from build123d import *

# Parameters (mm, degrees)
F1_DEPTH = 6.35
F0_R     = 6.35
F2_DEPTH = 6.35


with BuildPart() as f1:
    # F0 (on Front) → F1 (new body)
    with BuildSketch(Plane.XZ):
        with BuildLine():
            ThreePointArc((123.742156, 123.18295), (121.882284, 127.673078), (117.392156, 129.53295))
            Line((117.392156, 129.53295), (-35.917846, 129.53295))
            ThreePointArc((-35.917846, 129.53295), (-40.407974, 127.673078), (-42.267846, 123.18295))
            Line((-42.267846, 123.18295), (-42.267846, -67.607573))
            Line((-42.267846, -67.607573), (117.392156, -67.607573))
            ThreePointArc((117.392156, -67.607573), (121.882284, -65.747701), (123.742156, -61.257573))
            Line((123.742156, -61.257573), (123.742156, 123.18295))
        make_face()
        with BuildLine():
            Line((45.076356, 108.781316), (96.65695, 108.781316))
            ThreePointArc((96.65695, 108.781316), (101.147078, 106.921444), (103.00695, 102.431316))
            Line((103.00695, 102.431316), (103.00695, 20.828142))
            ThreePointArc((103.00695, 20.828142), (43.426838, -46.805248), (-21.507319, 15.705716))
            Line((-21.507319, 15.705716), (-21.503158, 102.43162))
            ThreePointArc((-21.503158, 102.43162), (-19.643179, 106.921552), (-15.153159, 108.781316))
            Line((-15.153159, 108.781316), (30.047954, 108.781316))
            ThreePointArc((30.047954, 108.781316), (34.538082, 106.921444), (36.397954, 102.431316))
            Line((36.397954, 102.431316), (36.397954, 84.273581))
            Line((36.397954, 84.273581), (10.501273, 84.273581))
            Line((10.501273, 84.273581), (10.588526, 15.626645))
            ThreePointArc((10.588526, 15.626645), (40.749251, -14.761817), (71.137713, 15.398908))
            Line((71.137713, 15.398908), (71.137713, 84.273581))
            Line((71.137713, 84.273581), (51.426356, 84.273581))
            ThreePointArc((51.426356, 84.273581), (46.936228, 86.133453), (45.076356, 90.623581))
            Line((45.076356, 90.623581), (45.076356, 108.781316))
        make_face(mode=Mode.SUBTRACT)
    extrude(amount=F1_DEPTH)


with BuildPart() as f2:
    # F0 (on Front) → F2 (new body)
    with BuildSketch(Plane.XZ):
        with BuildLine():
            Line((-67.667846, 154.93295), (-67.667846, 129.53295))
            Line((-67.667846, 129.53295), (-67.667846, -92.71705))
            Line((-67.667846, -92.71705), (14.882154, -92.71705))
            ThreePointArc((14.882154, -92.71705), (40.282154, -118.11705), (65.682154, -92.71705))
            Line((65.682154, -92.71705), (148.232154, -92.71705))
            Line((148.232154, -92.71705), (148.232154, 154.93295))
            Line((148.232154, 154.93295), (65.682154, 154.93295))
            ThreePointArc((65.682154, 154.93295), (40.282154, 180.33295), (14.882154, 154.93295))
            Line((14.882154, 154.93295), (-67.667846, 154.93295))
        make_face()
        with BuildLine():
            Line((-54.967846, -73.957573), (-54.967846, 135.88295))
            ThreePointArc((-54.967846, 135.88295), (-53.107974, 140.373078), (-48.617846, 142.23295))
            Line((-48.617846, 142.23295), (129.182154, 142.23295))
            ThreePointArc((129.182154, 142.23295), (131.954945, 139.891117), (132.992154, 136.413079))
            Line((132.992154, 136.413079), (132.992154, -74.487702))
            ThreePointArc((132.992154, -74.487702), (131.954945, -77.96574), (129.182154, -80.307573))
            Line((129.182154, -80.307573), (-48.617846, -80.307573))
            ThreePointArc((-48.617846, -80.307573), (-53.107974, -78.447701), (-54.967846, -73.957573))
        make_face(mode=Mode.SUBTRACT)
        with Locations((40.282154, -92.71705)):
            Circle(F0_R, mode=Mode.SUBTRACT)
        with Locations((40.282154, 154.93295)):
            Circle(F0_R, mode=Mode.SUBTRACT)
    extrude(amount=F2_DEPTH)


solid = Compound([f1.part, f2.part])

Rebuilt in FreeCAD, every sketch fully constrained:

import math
import FreeCAD as App
import Part
import Sketcher

V = App.Vector
Q = App.Units.Quantity

doc = App.newDocument("Part")
body = doc.addObject("PartDesign::Body", "Body")

# Sketch on XZ plane
sketch1 = body.newObject("Sketcher::SketchObject", "Sketch")
sketch1.AttachmentSupport = (doc.getObject("XZ_Plane"), [""])
sketch1.MapMode = "FlatFace"
sketch1.addGeometry(Part.ArcOfCircle(Part.Circle(V(117, 123, 0), V(0, 0, 1), 6), math.radians(0), math.radians(90)), False)
sketch1.addGeometry(Part.LineSegment(V(117, 130, 0), V(-36, 130, 0)), False)
sketch1.addGeometry(Part.ArcOfCircle(Part.Circle(V(-36, 123, 0), V(0, 0, 1), 6), math.radians(90), math.radians(180)), False)
sketch1.addGeometry(Part.LineSegment(V(-42, 123, 0), V(-42, -68, 0)), False)
sketch1.addGeometry(Part.LineSegment(V(-42, -68, 0), V(117, -68, 0)), False)
sketch1.addGeometry(Part.ArcOfCircle(Part.Circle(V(117, -61, 0), V(0, 0, 1), 6), math.radians(-90), math.radians(0)), False)
sketch1.addGeometry(Part.LineSegment(V(124, -61, 0), V(124, 123, 0)), False)
sketch1.addGeometry(Part.LineSegment(V(45, 91, 0), V(45, 109, 0)), False)
sketch1.addGeometry(Part.LineSegment(V(45, 109, 0), V(97, 109, 0)), False)
sketch1.addGeometry(Part.ArcOfCircle(Part.Circle(V(97, 102, 0), V(0, 0, 1), 6), math.radians(0), math.radians(90)), False)
sketch1.addGeometry(Part.LineSegment(V(103, 102, 0), V(103, 21, 0)), False)
sketch1.addGeometry(Part.ArcOfCircle(Part.Circle(V(41, 16, 0), V(0, 0, 1), 62), math.radians(180), math.radians(365)), False)
sketch1.addGeometry(Part.LineSegment(V(-22, 16, 0), V(-22, 102, 0)), False)
sketch1.addGeometry(Part.ArcOfCircle(Part.Circle(V(-15, 102, 0), V(0, 0, 1), 6), math.radians(90), math.radians(180)), False)
sketch1.addGeometry(Part.LineSegment(V(-15, 109, 0), V(30, 109, 0)), False)
sketch1.addGeometry(Part.ArcOfCircle(Part.Circle(V(30, 102, 0), V(0, 0, 1), 6), math.radians(0), math.radians(90)), False)
sketch1.addGeometry(Part.LineSegment(V(36, 102, 0), V(36, 84, 0)), False)
sketch1.addGeometry(Part.LineSegment(V(36, 84, 0), V(11, 84, 0)), False)
sketch1.addGeometry(Part.LineSegment(V(11, 84, 0), V(11, 16, 0)), False)
sketch1.addGeometry(Part.ArcOfCircle(Part.Circle(V(41, 16, 0), V(0, 0, 1), 30), math.radians(180), math.radians(360)), False)
sketch1.addGeometry(Part.LineSegment(V(71, 15, 0), V(71, 84, 0)), False)
sketch1.addGeometry(Part.LineSegment(V(71, 84, 0), V(51, 84, 0)), False)
sketch1.addGeometry(Part.ArcOfCircle(Part.Circle(V(51, 91, 0), V(0, 0, 1), 6), math.radians(-180), math.radians(-90)), False)
sketch1.addConstraint(Sketcher.Constraint("Tangent", 0, 2, 1, 1))
sketch1.addConstraint(Sketcher.Constraint("Tangent", 1, 2, 2, 1))
sketch1.addConstraint(Sketcher.Constraint("Tangent", 2, 2, 3, 1))
sketch1.addConstraint(Sketcher.Constraint("Coincident", 3, 2, 4, 1))
sketch1.addConstraint(Sketcher.Constraint("Tangent", 4, 2, 5, 1))
sketch1.addConstraint(Sketcher.Constraint("Tangent", 5, 2, 6, 1))
sketch1.addConstraint(Sketcher.Constraint("Tangent", 6, 2, 0, 1))
sketch1.addConstraint(Sketcher.Constraint("Coincident", 7, 2, 8, 1))
sketch1.addConstraint(Sketcher.Constraint("Tangent", 8, 2, 9, 2))
sketch1.addConstraint(Sketcher.Constraint("Tangent", 9, 1, 10, 1))
sketch1.addConstraint(Sketcher.Constraint("Coincident", 10, 2, 11, 2))
sketch1.addConstraint(Sketcher.Constraint("Coincident", 11, 1, 12, 1))
sketch1.addConstraint(Sketcher.Constraint("Tangent", 12, 2, 13, 2))
sketch1.addConstraint(Sketcher.Constraint("Tangent", 13, 1, 14, 1))
sketch1.addConstraint(Sketcher.Constraint("Tangent", 14, 2, 15, 2))
sketch1.addConstraint(Sketcher.Constraint("Tangent", 15, 1, 16, 1))
sketch1.addConstraint(Sketcher.Constraint("Coincident", 16, 2, 17, 1))
sketch1.addConstraint(Sketcher.Constraint("Coincident", 17, 2, 18, 1))
sketch1.addConstraint(Sketcher.Constraint("Coincident", 18, 2, 19, 1))
sketch1.addConstraint(Sketcher.Constraint("Coincident", 19, 2, 20, 1))
sketch1.addConstraint(Sketcher.Constraint("Coincident", 20, 2, 21, 1))
sketch1.addConstraint(Sketcher.Constraint("Tangent", 21, 2, 22, 2))
sketch1.addConstraint(Sketcher.Constraint("Tangent", 22, 1, 7, 1))
sketch1.addConstraint(Sketcher.Constraint("Horizontal", 1))
sketch1.addConstraint(Sketcher.Constraint("Vertical", 3))
sketch1.addConstraint(Sketcher.Constraint("Horizontal", 4))
sketch1.addConstraint(Sketcher.Constraint("Vertical", 6))
sketch1.addConstraint(Sketcher.Constraint("Vertical", 7))
sketch1.addConstraint(Sketcher.Constraint("Horizontal", 8))
sketch1.addConstraint(Sketcher.Constraint("Vertical", 10))
sketch1.addConstraint(Sketcher.Constraint("Horizontal", 14))
sketch1.addConstraint(Sketcher.Constraint("Vertical", 16))
sketch1.addConstraint(Sketcher.Constraint("Horizontal", 17))
sketch1.addConstraint(Sketcher.Constraint("Vertical", 20))
sketch1.addConstraint(Sketcher.Constraint("Horizontal", 21))
sketch1.addConstraint(Sketcher.Constraint("Coincident", 19, 3, 11, 3))
sketch1.addConstraint(Sketcher.Constraint("Equal", 0, 2))
sketch1.addConstraint(Sketcher.Constraint("Equal", 2, 5))
sketch1.addConstraint(Sketcher.Constraint("Equal", 5, 9))
sketch1.addConstraint(Sketcher.Constraint("Equal", 9, 13))
sketch1.addConstraint(Sketcher.Constraint("Equal", 13, 15))
sketch1.addConstraint(Sketcher.Constraint("Equal", 15, 22))
sketch1.addConstraint(Sketcher.Constraint("Horizontal", 9, 3, 13, 3))
sketch1.addConstraint(Sketcher.Constraint("Horizontal", 17, 2, 20, 2))
sketch1.addConstraint(Sketcher.Constraint("Radius", 0, Q("0.25 in")))
sketch1.addConstraint(Sketcher.Constraint("DistanceX", 1, 2, 1, 1, 153.310002))
sketch1.addConstraint(Sketcher.Constraint("Radius", 11, 62.370737))
sketch1.addConstraint(Sketcher.Constraint("Radius", 19, 30.274808))
sketch1.addConstraint(Sketcher.Constraint("DistanceX", 17, 2, 17, 1, 25.896681))
sketch1.addConstraint(Sketcher.Constraint("DistanceX", 2, 3, 15, 3, 65.9658))
sketch1.addConstraint(Sketcher.Constraint("DistanceX", 22, 3, 0, 3, 65.9658))
sketch1.addConstraint(Sketcher.Constraint("DistanceY", 11, 1, 13, 3, 86.725601))
sketch1.addConstraint(Sketcher.Constraint("Distance", 18, 68.646991))
sketch1.addConstraint(Sketcher.Constraint("DistanceX", 8, 1, 8, 2, 51.580594))
sketch1.addConstraint(Sketcher.Constraint("DistanceX", 14, 1, 14, 2, 45.201113))
sketch1.addConstraint(Sketcher.Constraint("DistanceX", 21, 2, 21, 1, 19.711357))
sketch1.addConstraint(Sketcher.Constraint("DistanceY", 3, 2, 3, 1, 190.790523))
sketch1.addConstraint(Sketcher.Constraint("DistanceY", 7, 1, 7, 2, 18.157735))
sketch1.addConstraint(Sketcher.Constraint("DistanceY", 10, 2, 10, 1, 81.603174))
sketch1.addConstraint(Sketcher.Constraint("DistanceY", 20, 1, 20, 2, 68.874673))
sketch1.addConstraint(Sketcher.Constraint("DistanceY", -1, 1, 0, 3, 123.18295))
sketch1.addConstraint(Sketcher.Constraint("DistanceX", -1, 1, 9, 3, 96.65695))
sketch1.addConstraint(Sketcher.Constraint("DistanceY", -1, 1, 22, 3, 90.623581))
pad1 = body.newObject("PartDesign::Pad", "Pad")
pad1.Profile = sketch1
pad1.Length = Q("0.25 in")
body2 = doc.addObject("PartDesign::Body", "Body001")

# Sketch on XZ plane
sketch2 = body2.newObject("Sketcher::SketchObject", "Sketch001")
sketch2.AttachmentSupport = (doc.getObject("XZ_Plane001"), [""])
sketch2.MapMode = "FlatFace"
sketch2.addGeometry(Part.LineSegment(V(-68, 155, 0), V(-68, -93, 0)), False)
sketch2.addGeometry(Part.LineSegment(V(-68, -93, 0), V(15, -93, 0)), False)
sketch2.addGeometry(Part.ArcOfCircle(Part.Circle(V(40, -93, 0), V(0, 0, 1), 25), math.radians(180), math.radians(360)), False)
sketch2.addGeometry(Part.LineSegment(V(66, -93, 0), V(148, -93, 0)), False)
sketch2.addGeometry(Part.LineSegment(V(148, -93, 0), V(148, 155, 0)), False)
sketch2.addGeometry(Part.LineSegment(V(148, 155, 0), V(66, 155, 0)), False)
sketch2.addGeometry(Part.ArcOfCircle(Part.Circle(V(40, 155, 0), V(0, 0, 1), 25), math.radians(0), math.radians(180)), False)
sketch2.addGeometry(Part.LineSegment(V(15, 155, 0), V(-68, 155, 0)), False)
sketch2.addGeometry(Part.ArcOfCircle(Part.Circle(V(-49, -74, 0), V(0, 0, 1), 6), math.radians(-180), math.radians(-90)), False)
sketch2.addGeometry(Part.LineSegment(V(-55, -74, 0), V(-55, 136, 0)), False)
sketch2.addGeometry(Part.ArcOfCircle(Part.Circle(V(-49, 136, 0), V(0, 0, 1), 6), math.radians(90), math.radians(180)), False)
sketch2.addGeometry(Part.LineSegment(V(-49, 142, 0), V(129, 142, 0)), False)
sketch2.addGeometry(Part.ArcOfCircle(Part.Circle(V(127, 136, 0), V(0, 0, 1), 6), math.radians(0), math.radians(66)), False)
sketch2.addGeometry(Part.LineSegment(V(133, 136, 0), V(133, -74, 0)), False)
sketch2.addGeometry(Part.ArcOfCircle(Part.Circle(V(127, -74, 0), V(0, 0, 1), 6), math.radians(-66), math.radians(0)), False)
sketch2.addGeometry(Part.LineSegment(V(129, -80, 0), V(-49, -80, 0)), False)
sketch2.addGeometry(Part.Circle(V(40, -93, 0), V(0, 0, 1), 6), False)
sketch2.addGeometry(Part.Circle(V(40, 155, 0), V(0, 0, 1), 6), False)
sketch2.addConstraint(Sketcher.Constraint("Coincident", 0, 2, 1, 1))
sketch2.addConstraint(Sketcher.Constraint("Coincident", 1, 2, 2, 1))
sketch2.addConstraint(Sketcher.Constraint("Coincident", 2, 2, 3, 1))
sketch2.addConstraint(Sketcher.Constraint("Coincident", 3, 2, 4, 1))
sketch2.addConstraint(Sketcher.Constraint("Coincident", 4, 2, 5, 1))
sketch2.addConstraint(Sketcher.Constraint("Coincident", 5, 2, 6, 1))
sketch2.addConstraint(Sketcher.Constraint("Coincident", 6, 2, 7, 1))
sketch2.addConstraint(Sketcher.Constraint("Coincident", 7, 2, 0, 1))
sketch2.addConstraint(Sketcher.Constraint("Tangent", 8, 1, 9, 1))
sketch2.addConstraint(Sketcher.Constraint("Tangent", 9, 2, 10, 2))
sketch2.addConstraint(Sketcher.Constraint("Tangent", 10, 1, 11, 1))
sketch2.addConstraint(Sketcher.Constraint("Coincident", 11, 2, 12, 2))
sketch2.addConstraint(Sketcher.Constraint("Tangent", 12, 1, 13, 1))
sketch2.addConstraint(Sketcher.Constraint("Tangent", 13, 2, 14, 2))
sketch2.addConstraint(Sketcher.Constraint("Coincident", 14, 1, 15, 1))
sketch2.addConstraint(Sketcher.Constraint("Tangent", 15, 2, 8, 2))
sketch2.addConstraint(Sketcher.Constraint("Vertical", 0))
sketch2.addConstraint(Sketcher.Constraint("Horizontal", 1))
sketch2.addConstraint(Sketcher.Constraint("Horizontal", 3))
sketch2.addConstraint(Sketcher.Constraint("Vertical", 4))
sketch2.addConstraint(Sketcher.Constraint("Horizontal", 5))
sketch2.addConstraint(Sketcher.Constraint("Horizontal", 7))
sketch2.addConstraint(Sketcher.Constraint("Vertical", 9))
sketch2.addConstraint(Sketcher.Constraint("Horizontal", 11))
sketch2.addConstraint(Sketcher.Constraint("Vertical", 13))
sketch2.addConstraint(Sketcher.Constraint("Horizontal", 15))
sketch2.addConstraint(Sketcher.Constraint("Coincident", 16, 3, 2, 3))
sketch2.addConstraint(Sketcher.Constraint("Coincident", 17, 3, 6, 3))
sketch2.addConstraint(Sketcher.Constraint("Equal", 2, 6))
sketch2.addConstraint(Sketcher.Constraint("Equal", 8, 10))
sketch2.addConstraint(Sketcher.Constraint("Equal", 10, 12))
sketch2.addConstraint(Sketcher.Constraint("Equal", 12, 14))
sketch2.addConstraint(Sketcher.Constraint("Equal", 14, 16))
sketch2.addConstraint(Sketcher.Constraint("Equal", 16, 17))
sketch2.addConstraint(Sketcher.Constraint("Horizontal", 16, 3, 0, 2))
sketch2.addConstraint(Sketcher.Constraint("Horizontal", 1, 2, 2, 2))
sketch2.addConstraint(Sketcher.Constraint("Horizontal", 17, 3, 4, 2))
sketch2.addConstraint(Sketcher.Constraint("Horizontal", 5, 2, 6, 2))
sketch2.addConstraint(Sketcher.Constraint("Vertical", 2, 3, 6, 3))
sketch2.addConstraint(Sketcher.Constraint("Vertical", 11, 2, 14, 1))
sketch2.addConstraint(Sketcher.Constraint("Equal", 1, 3))
sketch2.addConstraint(Sketcher.Constraint("Radius", 2, Q("1 in")))
sketch2.addConstraint(Sketcher.Constraint("Diameter", 16, Q("0.5 in")))
sketch2.addConstraint(Sketcher.Constraint("DistanceX", 11, 1, 11, 2, Q("7 in")))
sketch2.addConstraint(Sketcher.Constraint("DistanceY", 2, 3, 10, 3, Q("9 in")))
sketch2.addConstraint(Sketcher.Constraint("DistanceX", 1, 1, 1, 2, Q("3.25 in")))
sketch2.addConstraint(Sketcher.Constraint("DistanceY", 0, 2, 0, 1, Q("9.75 in")))
sketch2.addConstraint(Sketcher.Constraint("DistanceX", 8, 3, 2, 3, Q("3.5 in")))
sketch2.addConstraint(Sketcher.Constraint("DistanceX", 6, 3, 12, 3, Q("3.4 in")))
sketch2.addConstraint(Sketcher.Constraint("DistanceY", 13, 2, 13, 1, 210.900781))
sketch2.addConstraint(Sketcher.Constraint("DistanceY", 14, 3, -1, 1, 74.487701))
sketch2.addConstraint(Sketcher.Constraint("DistanceX", -1, 1, 2, 3, 40.282154))
pad2 = body2.newObject("PartDesign::Pad", "Pad001")
pad2.Profile = sketch2
pad2.Length = Q("0.25 in")

doc.recompute()
